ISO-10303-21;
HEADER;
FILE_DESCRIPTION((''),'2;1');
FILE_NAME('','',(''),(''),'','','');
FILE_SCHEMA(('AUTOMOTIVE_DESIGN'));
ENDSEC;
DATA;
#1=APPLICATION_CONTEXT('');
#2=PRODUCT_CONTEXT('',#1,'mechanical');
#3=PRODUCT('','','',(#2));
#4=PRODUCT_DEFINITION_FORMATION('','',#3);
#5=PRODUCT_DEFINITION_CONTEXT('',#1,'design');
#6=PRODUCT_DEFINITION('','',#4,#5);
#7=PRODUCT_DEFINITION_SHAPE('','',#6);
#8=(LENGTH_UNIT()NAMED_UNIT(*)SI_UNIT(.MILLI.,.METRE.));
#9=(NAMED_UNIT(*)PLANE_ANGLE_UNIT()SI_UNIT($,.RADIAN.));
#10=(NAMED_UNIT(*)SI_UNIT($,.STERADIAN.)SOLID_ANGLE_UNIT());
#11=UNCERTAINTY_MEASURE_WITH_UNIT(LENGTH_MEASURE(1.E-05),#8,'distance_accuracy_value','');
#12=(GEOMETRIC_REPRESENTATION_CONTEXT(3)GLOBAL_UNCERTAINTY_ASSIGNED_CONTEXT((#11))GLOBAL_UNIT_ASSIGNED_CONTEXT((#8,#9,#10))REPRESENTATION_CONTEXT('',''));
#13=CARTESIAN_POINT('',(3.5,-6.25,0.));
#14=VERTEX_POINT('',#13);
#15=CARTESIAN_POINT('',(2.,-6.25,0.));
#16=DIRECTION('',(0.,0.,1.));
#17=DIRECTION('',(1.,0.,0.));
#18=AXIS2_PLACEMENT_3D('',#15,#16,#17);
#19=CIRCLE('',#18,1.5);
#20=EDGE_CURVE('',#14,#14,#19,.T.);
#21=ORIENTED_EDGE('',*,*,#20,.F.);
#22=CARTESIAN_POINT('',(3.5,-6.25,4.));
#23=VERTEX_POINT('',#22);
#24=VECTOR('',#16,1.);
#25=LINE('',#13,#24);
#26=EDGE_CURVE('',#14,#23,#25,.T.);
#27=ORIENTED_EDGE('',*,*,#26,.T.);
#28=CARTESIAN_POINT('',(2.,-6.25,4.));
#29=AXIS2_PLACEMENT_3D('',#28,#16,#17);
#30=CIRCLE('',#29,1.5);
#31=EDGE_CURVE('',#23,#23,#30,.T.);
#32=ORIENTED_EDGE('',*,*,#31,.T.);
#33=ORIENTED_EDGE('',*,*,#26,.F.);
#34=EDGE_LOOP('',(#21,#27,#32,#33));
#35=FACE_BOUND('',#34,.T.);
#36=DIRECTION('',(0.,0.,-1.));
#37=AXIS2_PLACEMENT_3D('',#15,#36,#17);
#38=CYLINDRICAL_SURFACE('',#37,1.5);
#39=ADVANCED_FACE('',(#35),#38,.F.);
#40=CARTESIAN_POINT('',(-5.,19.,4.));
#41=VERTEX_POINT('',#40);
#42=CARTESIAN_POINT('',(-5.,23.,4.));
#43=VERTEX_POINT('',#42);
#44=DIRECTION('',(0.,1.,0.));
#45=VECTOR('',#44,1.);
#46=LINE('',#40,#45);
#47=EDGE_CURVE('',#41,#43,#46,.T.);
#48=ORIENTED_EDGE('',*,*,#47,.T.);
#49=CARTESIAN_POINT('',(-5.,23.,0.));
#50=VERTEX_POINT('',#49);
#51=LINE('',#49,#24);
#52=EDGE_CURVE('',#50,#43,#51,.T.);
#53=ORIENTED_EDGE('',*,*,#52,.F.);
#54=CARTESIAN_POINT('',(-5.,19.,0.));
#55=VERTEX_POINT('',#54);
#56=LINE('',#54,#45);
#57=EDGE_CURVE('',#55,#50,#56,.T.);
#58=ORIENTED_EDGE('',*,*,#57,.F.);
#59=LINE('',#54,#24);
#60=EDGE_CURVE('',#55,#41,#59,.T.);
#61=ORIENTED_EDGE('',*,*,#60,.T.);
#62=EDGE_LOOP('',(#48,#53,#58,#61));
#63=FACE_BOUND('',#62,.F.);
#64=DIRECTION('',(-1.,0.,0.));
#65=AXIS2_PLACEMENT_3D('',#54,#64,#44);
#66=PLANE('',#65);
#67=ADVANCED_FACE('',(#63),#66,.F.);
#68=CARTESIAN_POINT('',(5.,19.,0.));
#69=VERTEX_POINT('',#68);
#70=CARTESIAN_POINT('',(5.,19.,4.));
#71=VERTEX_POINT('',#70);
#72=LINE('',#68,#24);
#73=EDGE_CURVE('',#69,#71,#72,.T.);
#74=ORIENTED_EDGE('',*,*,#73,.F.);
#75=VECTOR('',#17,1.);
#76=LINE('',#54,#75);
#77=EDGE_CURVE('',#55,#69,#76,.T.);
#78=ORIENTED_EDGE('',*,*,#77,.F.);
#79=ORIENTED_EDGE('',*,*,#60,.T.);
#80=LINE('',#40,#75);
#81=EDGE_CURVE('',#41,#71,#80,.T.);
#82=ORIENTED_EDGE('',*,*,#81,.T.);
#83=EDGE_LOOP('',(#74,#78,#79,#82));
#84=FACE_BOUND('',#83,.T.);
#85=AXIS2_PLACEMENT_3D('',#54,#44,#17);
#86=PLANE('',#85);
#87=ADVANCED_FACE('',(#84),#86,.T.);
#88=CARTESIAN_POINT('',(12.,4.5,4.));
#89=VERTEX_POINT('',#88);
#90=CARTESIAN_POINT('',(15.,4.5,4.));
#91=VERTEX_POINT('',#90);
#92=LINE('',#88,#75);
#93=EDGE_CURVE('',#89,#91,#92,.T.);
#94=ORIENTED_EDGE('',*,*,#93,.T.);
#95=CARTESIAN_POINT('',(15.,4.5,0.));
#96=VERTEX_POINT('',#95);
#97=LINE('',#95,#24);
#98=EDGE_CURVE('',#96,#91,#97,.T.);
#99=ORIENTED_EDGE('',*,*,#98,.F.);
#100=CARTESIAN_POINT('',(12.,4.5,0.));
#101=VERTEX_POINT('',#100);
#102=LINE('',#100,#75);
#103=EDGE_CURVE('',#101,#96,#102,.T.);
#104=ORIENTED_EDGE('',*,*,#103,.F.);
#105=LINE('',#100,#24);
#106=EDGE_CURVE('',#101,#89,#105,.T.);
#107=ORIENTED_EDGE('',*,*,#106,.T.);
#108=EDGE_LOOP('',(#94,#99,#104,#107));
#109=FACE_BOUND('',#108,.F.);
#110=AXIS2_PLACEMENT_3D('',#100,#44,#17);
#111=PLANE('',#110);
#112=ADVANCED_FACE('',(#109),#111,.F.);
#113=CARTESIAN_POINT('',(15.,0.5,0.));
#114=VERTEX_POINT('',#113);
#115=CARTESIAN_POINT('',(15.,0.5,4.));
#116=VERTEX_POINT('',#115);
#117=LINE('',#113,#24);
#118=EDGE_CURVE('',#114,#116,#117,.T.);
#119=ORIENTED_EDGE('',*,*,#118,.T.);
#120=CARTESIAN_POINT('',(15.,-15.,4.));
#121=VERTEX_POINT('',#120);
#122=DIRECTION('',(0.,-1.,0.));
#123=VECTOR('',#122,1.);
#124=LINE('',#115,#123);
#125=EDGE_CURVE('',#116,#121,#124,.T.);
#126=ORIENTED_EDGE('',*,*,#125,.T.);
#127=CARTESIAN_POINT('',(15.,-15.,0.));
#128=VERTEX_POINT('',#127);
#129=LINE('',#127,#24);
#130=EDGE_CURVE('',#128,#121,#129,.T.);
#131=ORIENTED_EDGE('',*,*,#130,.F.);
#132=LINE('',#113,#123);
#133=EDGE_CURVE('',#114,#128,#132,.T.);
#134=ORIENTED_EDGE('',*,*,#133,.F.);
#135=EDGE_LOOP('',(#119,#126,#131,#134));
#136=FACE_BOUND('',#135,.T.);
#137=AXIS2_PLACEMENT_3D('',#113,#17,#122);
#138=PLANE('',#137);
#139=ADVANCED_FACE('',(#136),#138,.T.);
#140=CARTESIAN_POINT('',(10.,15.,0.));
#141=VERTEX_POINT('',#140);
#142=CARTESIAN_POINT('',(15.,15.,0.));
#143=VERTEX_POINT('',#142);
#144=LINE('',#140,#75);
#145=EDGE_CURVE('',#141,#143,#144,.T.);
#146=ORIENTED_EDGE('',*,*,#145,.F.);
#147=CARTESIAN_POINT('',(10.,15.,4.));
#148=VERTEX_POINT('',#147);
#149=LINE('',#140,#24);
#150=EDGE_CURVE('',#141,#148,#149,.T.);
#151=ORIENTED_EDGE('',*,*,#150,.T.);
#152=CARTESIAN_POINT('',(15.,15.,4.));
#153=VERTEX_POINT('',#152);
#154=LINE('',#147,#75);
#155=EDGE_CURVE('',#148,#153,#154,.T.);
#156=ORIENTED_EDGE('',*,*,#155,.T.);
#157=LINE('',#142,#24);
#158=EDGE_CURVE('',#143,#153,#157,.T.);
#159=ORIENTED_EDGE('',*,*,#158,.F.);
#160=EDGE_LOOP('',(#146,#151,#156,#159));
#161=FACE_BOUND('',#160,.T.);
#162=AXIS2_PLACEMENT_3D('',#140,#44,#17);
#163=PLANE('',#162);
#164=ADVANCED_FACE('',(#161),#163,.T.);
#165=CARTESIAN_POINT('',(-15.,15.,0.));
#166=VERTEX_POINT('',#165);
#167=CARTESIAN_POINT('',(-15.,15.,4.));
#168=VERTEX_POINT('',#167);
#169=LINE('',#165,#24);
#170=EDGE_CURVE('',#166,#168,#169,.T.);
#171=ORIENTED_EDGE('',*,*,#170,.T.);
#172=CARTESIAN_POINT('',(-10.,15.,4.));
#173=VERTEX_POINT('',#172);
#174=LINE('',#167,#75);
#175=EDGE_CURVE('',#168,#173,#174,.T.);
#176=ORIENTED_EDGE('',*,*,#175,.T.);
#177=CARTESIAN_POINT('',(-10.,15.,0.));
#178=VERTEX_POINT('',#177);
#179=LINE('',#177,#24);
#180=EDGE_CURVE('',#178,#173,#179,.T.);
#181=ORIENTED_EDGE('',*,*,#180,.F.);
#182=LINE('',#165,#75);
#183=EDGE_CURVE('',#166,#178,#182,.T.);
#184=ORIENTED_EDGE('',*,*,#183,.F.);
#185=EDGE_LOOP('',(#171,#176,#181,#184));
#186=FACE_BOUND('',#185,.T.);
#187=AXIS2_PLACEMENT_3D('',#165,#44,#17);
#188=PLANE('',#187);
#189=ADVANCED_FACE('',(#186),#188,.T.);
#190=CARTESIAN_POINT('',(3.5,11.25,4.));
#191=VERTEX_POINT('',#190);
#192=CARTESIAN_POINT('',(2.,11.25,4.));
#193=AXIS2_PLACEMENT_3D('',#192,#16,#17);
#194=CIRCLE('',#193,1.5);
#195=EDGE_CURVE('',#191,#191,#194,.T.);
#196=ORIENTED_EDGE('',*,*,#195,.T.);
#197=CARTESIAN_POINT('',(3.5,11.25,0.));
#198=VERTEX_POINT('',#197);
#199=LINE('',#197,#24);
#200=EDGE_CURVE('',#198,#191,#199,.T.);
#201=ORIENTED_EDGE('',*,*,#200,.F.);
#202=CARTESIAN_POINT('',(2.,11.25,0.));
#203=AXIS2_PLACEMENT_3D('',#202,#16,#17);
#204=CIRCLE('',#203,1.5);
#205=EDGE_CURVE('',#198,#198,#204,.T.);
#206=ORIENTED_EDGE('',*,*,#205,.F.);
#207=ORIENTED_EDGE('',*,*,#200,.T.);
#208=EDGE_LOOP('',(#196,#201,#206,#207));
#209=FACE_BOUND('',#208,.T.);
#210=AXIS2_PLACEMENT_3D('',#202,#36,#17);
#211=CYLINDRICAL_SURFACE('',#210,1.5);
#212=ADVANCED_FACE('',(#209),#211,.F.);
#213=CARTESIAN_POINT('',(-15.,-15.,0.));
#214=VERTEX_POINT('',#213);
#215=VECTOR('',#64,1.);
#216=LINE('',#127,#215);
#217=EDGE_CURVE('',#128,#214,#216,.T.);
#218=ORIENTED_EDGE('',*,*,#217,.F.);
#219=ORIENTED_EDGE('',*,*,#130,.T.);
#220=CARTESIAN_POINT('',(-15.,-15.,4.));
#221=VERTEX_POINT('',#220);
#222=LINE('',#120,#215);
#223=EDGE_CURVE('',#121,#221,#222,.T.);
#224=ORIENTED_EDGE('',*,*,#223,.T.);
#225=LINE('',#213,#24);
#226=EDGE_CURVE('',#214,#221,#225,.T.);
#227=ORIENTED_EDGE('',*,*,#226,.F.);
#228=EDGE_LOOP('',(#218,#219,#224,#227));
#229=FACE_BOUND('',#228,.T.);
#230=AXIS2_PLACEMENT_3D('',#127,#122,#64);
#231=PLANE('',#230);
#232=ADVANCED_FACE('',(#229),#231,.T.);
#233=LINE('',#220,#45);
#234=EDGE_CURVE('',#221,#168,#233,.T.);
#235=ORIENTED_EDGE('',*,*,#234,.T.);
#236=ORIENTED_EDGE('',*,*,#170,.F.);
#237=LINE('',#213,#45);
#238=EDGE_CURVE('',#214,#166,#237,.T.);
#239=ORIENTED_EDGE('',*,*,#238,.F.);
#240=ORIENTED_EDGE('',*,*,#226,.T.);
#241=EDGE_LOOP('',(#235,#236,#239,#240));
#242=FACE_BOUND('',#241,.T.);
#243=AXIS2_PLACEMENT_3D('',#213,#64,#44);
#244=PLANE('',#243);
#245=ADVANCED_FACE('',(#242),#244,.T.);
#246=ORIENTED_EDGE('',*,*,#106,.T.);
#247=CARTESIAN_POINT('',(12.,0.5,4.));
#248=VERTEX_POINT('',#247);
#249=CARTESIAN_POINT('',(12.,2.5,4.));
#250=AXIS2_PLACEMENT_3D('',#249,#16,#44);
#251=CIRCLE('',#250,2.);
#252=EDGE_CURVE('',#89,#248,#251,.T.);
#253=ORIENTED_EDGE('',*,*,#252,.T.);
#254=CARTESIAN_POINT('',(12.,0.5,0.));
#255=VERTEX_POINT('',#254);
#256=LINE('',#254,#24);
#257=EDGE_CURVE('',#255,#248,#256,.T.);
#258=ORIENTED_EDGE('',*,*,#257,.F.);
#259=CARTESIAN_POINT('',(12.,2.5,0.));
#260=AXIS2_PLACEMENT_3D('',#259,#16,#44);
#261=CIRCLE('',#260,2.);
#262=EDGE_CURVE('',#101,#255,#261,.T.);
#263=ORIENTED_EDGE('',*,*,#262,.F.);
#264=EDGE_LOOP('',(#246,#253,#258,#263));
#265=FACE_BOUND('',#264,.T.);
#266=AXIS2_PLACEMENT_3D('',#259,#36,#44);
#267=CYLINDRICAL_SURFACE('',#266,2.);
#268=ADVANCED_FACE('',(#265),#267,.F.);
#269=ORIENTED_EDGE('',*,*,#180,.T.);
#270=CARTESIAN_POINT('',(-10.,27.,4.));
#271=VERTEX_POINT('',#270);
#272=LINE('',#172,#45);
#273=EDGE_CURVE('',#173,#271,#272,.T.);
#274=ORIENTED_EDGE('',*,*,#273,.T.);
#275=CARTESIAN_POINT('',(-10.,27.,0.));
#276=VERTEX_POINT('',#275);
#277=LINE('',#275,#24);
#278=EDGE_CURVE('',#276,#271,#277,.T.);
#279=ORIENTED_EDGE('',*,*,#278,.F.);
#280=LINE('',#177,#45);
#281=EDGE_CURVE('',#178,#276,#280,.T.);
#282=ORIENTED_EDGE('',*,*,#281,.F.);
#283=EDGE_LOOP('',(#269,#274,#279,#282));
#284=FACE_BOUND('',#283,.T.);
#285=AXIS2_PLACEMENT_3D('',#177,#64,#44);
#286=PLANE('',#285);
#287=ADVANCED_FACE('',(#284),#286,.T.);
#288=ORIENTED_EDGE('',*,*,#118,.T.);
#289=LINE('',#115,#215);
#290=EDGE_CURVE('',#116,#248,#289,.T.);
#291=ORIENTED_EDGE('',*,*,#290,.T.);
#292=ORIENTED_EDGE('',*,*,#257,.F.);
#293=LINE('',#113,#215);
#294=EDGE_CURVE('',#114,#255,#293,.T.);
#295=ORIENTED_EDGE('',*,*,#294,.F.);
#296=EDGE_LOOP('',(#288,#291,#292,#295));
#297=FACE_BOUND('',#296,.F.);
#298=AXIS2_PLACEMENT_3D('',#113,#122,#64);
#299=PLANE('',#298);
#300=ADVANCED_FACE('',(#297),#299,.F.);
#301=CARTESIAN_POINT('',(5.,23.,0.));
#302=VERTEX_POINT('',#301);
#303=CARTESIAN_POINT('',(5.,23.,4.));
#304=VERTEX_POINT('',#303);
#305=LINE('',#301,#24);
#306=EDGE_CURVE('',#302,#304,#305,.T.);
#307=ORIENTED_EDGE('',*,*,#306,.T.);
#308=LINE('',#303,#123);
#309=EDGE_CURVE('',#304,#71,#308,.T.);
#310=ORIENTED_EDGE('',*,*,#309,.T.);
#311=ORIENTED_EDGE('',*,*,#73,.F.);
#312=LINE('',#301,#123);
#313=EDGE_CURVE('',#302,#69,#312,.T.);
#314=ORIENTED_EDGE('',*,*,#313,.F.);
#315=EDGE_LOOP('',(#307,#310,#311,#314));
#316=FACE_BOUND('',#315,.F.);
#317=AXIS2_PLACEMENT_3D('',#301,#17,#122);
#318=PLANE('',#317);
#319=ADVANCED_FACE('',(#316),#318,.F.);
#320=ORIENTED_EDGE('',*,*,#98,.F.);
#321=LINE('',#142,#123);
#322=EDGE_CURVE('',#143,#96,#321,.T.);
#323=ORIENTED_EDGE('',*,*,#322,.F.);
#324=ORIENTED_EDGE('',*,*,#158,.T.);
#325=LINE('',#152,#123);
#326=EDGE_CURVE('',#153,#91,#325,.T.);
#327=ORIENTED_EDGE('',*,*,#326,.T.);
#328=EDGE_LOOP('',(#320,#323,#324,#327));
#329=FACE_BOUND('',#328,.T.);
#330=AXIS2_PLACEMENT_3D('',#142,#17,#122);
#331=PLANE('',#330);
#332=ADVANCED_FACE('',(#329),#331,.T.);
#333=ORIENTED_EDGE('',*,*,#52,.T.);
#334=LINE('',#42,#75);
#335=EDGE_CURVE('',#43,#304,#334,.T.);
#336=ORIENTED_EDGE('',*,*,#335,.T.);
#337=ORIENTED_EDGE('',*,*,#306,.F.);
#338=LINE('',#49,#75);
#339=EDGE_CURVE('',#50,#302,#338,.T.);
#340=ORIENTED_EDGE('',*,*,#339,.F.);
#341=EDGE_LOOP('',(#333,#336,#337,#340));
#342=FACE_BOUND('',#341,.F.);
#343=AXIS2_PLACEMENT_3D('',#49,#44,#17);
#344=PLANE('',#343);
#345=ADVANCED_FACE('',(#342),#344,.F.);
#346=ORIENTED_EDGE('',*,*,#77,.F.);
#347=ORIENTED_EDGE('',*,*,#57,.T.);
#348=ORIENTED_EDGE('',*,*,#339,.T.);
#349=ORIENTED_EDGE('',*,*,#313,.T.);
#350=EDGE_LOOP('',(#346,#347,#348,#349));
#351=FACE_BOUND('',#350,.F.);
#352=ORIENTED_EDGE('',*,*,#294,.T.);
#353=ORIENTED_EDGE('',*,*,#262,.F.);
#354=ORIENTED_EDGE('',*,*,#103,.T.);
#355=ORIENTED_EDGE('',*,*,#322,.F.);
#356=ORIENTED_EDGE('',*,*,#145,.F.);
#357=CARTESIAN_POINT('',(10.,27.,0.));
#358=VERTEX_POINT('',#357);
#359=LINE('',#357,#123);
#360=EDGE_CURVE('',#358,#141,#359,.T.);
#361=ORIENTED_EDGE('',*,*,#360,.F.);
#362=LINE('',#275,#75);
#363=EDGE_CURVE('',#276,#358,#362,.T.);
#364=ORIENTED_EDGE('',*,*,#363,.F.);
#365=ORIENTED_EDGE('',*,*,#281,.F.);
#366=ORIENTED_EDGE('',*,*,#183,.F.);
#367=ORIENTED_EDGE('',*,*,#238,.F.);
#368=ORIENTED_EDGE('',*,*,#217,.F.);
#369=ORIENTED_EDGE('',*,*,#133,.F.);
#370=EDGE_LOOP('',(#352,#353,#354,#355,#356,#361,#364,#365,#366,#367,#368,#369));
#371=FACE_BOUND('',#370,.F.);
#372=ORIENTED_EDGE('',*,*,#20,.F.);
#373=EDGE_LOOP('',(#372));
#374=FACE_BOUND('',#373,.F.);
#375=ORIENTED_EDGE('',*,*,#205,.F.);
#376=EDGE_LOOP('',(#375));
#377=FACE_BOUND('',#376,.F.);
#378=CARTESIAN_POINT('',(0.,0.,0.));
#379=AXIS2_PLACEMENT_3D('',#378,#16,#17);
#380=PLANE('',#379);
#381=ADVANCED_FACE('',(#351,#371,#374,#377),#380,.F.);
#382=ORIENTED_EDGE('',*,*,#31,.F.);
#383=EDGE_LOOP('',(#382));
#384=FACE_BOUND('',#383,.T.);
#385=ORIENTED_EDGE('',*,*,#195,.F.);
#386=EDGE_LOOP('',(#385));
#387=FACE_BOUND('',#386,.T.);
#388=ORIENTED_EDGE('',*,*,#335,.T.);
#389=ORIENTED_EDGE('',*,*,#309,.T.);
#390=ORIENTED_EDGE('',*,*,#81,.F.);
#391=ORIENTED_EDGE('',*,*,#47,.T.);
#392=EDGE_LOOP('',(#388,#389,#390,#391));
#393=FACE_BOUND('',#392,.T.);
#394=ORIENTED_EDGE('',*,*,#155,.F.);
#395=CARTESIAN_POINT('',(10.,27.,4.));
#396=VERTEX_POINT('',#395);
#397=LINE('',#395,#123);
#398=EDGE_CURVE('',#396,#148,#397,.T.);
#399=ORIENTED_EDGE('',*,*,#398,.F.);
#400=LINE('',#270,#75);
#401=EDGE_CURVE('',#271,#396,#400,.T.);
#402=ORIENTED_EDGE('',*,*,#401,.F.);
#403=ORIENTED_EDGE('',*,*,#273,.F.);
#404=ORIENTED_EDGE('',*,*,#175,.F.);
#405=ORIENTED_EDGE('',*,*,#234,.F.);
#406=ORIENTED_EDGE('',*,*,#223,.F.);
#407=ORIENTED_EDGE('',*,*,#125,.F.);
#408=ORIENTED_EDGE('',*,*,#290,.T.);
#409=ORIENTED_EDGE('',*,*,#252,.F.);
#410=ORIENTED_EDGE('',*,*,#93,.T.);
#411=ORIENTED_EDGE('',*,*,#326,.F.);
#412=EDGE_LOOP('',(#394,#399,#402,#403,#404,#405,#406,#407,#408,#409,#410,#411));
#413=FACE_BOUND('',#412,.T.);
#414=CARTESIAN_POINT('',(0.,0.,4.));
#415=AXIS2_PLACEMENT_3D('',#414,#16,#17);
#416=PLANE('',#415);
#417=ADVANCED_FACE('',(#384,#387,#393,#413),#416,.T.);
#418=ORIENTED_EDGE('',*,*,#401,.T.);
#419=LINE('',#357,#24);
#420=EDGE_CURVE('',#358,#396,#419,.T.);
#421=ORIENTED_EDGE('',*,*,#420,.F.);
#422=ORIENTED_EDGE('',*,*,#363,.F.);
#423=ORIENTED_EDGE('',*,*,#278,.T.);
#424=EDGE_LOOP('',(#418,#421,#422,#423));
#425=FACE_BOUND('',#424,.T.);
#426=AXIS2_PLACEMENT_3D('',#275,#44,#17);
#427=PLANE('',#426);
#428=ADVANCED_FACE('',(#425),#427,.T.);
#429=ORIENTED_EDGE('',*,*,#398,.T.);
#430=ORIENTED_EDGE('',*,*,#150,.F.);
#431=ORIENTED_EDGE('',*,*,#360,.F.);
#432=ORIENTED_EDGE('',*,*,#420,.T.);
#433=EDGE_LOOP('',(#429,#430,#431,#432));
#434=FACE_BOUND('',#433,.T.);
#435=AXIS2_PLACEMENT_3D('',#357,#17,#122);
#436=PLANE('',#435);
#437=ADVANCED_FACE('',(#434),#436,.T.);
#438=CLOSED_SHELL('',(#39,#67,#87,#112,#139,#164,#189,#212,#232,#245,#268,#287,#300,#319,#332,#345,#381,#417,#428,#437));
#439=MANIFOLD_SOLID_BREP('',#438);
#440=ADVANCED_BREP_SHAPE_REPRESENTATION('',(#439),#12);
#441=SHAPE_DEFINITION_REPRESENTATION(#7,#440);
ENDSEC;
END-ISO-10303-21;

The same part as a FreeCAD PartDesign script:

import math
import FreeCAD as App
import Part
import Sketcher

V = App.Vector


def add_polygon(sketch, points):
    """Adds a closed chain of lines whose ends are joined by coincident constraints."""
    first, n = sketch.GeometryCount, len(points)
    for a, b in zip(points, points[1:] + points[:1]):
        sketch.addGeometry(Part.LineSegment(App.Vector(*a, 0), App.Vector(*b, 0)), False)
    for i in range(n):
        sketch.addConstraint(Sketcher.Constraint("Coincident", first + i, 2, first + (i + 1) % n, 1))

doc = App.newDocument("Part")
body = doc.addObject("PartDesign::Body", "Body")

sketch1 = doc.addObject("Sketcher::SketchObject", "Sketch")
body.addObject(sketch1)
sketch1.AttachmentSupport = (doc.XY_Plane, [""])
sketch1.MapMode = "FlatFace"
sketch1.addGeometry(Part.LineSegment(V(-15, -15, 0), V(15, -15, 0)), False)
sketch1.addGeometry(Part.LineSegment(V(15, -15, 0), V(15, 0.5, 0)), False)
sketch1.addGeometry(Part.LineSegment(V(15, 0.5, 0), V(12, 0.5, 0)), False)
sketch1.addGeometry(Part.ArcOfCircle(Part.Circle(V(12, 2.5, 0), V(0, 0, 1), 2), math.radians(90), math.radians(270)), False)
sketch1.addGeometry(Part.LineSegment(V(12, 4.5, 0), V(15, 4.5, 0)), False)
sketch1.addGeometry(Part.LineSegment(V(15, 4.5, 0), V(15, 15, 0)), False)
sketch1.addGeometry(Part.LineSegment(V(15, 15, 0), V(10, 15, 0)), False)
sketch1.addGeometry(Part.LineSegment(V(10, 15, 0), V(10, 27, 0)), False)
sketch1.addGeometry(Part.LineSegment(V(10, 27, 0), V(-10, 27, 0)), False)
sketch1.addGeometry(Part.LineSegment(V(-10, 27, 0), V(-10, 15, 0)), False)
sketch1.addGeometry(Part.LineSegment(V(-10, 15, 0), V(-15, 15, 0)), False)
sketch1.addGeometry(Part.LineSegment(V(-15, 15, 0), V(-15, -15, 0)), False)
sketch1.addGeometry(Part.Circle(V(2, -6.2, 0), V(0, 0, 1), 1.5), False)
sketch1.addGeometry(Part.Circle(V(2, 11.2, 0), V(0, 0, 1), 1.5), False)
add_polygon(sketch1, [(5, 19), (-5, 19), (-5, 23), (5, 23)])
sketch1.addConstraint([
    Sketcher.Constraint("Coincident", 0, 2, 1, 1),
    Sketcher.Constraint("Coincident", 1, 2, 2, 1),
    Sketcher.Constraint("Tangent", 2, 2, 3, 2),
    Sketcher.Constraint("Tangent", 3, 1, 4, 1),
    Sketcher.Constraint("Coincident", 4, 2, 5, 1),
    Sketcher.Constraint("Coincident", 5, 2, 6, 1),
    Sketcher.Constraint("Coincident", 6, 2, 7, 1),
    Sketcher.Constraint("Coincident", 7, 2, 8, 1),
    Sketcher.Constraint("Coincident", 8, 2, 9, 1),
    Sketcher.Constraint("Coincident", 9, 2, 10, 1),
    Sketcher.Constraint("Coincident", 10, 2, 11, 1),
    Sketcher.Constraint("Coincident", 11, 2, 0, 1),
    Sketcher.Constraint("Horizontal", 0),
    Sketcher.Constraint("Vertical", 1),
    Sketcher.Constraint("Horizontal", 2),
    Sketcher.Constraint("Horizontal", 4),
    Sketcher.Constraint("Vertical", 5),
    Sketcher.Constraint("Horizontal", 6),
    Sketcher.Constraint("Vertical", 7),
    Sketcher.Constraint("Horizontal", 8),
    Sketcher.Constraint("Vertical", 9),
    Sketcher.Constraint("Horizontal", 10),
    Sketcher.Constraint("Vertical", 11),
    Sketcher.Constraint("Horizontal", 14),
    Sketcher.Constraint("Vertical", 15),
    Sketcher.Constraint("Horizontal", 16),
    Sketcher.Constraint("Vertical", 17),
    Sketcher.Constraint("Equal", 12, 13),
    Sketcher.Constraint("Symmetric", 0, 2, 10, 2, -1, 1),
    Sketcher.Constraint("Symmetric", 5, 2, 11, 2, -1, 1),
    Sketcher.Constraint("Vertical", 12, 3, 13, 3),
    Sketcher.Constraint("Equal", 6, 10),
    Sketcher.Constraint("Equal", 0, 11),
    Sketcher.Constraint("Diameter", 12, 3.0),
    Sketcher.Constraint("Radius", 3, 2.0),
    Sketcher.Constraint("DistanceX", 0, 1, 0, 2, 30.0),
    Sketcher.Constraint("DistanceX", 2, 2, 2, 1, 3.0),
    Sketcher.Constraint("DistanceX", 8, 2, 8, 1, 20.0),
    Sketcher.Constraint("DistanceX", 14, 2, 14, 1, 10.0),
    Sketcher.Constraint("DistanceY", 7, 1, 7, 2, 12.0),
    Sketcher.Constraint("DistanceY", 15, 1, 15, 2, 4.0),
    Sketcher.Constraint("DistanceX", -1, 1, 12, 3, 2.0),
    Sketcher.Constraint("DistanceY", 9, 2, 14, 2, 4.0),
    Sketcher.Constraint("DistanceX", 10, 2, 14, 2, 10.0),
    Sketcher.Constraint("DistanceY", 12, 3, 13, 3, 17.5),
    Sketcher.Constraint("DistanceY", 0, 2, 3, 3, 17.5),
    Sketcher.Constraint("DistanceY", 12, 3, -1, 1, 6.25),
])
pad1 = doc.addObject("PartDesign::Pad", "Pad")
body.addObject(pad1)
pad1.Profile = sketch1
pad1.Length = 4

doc.recompute()
